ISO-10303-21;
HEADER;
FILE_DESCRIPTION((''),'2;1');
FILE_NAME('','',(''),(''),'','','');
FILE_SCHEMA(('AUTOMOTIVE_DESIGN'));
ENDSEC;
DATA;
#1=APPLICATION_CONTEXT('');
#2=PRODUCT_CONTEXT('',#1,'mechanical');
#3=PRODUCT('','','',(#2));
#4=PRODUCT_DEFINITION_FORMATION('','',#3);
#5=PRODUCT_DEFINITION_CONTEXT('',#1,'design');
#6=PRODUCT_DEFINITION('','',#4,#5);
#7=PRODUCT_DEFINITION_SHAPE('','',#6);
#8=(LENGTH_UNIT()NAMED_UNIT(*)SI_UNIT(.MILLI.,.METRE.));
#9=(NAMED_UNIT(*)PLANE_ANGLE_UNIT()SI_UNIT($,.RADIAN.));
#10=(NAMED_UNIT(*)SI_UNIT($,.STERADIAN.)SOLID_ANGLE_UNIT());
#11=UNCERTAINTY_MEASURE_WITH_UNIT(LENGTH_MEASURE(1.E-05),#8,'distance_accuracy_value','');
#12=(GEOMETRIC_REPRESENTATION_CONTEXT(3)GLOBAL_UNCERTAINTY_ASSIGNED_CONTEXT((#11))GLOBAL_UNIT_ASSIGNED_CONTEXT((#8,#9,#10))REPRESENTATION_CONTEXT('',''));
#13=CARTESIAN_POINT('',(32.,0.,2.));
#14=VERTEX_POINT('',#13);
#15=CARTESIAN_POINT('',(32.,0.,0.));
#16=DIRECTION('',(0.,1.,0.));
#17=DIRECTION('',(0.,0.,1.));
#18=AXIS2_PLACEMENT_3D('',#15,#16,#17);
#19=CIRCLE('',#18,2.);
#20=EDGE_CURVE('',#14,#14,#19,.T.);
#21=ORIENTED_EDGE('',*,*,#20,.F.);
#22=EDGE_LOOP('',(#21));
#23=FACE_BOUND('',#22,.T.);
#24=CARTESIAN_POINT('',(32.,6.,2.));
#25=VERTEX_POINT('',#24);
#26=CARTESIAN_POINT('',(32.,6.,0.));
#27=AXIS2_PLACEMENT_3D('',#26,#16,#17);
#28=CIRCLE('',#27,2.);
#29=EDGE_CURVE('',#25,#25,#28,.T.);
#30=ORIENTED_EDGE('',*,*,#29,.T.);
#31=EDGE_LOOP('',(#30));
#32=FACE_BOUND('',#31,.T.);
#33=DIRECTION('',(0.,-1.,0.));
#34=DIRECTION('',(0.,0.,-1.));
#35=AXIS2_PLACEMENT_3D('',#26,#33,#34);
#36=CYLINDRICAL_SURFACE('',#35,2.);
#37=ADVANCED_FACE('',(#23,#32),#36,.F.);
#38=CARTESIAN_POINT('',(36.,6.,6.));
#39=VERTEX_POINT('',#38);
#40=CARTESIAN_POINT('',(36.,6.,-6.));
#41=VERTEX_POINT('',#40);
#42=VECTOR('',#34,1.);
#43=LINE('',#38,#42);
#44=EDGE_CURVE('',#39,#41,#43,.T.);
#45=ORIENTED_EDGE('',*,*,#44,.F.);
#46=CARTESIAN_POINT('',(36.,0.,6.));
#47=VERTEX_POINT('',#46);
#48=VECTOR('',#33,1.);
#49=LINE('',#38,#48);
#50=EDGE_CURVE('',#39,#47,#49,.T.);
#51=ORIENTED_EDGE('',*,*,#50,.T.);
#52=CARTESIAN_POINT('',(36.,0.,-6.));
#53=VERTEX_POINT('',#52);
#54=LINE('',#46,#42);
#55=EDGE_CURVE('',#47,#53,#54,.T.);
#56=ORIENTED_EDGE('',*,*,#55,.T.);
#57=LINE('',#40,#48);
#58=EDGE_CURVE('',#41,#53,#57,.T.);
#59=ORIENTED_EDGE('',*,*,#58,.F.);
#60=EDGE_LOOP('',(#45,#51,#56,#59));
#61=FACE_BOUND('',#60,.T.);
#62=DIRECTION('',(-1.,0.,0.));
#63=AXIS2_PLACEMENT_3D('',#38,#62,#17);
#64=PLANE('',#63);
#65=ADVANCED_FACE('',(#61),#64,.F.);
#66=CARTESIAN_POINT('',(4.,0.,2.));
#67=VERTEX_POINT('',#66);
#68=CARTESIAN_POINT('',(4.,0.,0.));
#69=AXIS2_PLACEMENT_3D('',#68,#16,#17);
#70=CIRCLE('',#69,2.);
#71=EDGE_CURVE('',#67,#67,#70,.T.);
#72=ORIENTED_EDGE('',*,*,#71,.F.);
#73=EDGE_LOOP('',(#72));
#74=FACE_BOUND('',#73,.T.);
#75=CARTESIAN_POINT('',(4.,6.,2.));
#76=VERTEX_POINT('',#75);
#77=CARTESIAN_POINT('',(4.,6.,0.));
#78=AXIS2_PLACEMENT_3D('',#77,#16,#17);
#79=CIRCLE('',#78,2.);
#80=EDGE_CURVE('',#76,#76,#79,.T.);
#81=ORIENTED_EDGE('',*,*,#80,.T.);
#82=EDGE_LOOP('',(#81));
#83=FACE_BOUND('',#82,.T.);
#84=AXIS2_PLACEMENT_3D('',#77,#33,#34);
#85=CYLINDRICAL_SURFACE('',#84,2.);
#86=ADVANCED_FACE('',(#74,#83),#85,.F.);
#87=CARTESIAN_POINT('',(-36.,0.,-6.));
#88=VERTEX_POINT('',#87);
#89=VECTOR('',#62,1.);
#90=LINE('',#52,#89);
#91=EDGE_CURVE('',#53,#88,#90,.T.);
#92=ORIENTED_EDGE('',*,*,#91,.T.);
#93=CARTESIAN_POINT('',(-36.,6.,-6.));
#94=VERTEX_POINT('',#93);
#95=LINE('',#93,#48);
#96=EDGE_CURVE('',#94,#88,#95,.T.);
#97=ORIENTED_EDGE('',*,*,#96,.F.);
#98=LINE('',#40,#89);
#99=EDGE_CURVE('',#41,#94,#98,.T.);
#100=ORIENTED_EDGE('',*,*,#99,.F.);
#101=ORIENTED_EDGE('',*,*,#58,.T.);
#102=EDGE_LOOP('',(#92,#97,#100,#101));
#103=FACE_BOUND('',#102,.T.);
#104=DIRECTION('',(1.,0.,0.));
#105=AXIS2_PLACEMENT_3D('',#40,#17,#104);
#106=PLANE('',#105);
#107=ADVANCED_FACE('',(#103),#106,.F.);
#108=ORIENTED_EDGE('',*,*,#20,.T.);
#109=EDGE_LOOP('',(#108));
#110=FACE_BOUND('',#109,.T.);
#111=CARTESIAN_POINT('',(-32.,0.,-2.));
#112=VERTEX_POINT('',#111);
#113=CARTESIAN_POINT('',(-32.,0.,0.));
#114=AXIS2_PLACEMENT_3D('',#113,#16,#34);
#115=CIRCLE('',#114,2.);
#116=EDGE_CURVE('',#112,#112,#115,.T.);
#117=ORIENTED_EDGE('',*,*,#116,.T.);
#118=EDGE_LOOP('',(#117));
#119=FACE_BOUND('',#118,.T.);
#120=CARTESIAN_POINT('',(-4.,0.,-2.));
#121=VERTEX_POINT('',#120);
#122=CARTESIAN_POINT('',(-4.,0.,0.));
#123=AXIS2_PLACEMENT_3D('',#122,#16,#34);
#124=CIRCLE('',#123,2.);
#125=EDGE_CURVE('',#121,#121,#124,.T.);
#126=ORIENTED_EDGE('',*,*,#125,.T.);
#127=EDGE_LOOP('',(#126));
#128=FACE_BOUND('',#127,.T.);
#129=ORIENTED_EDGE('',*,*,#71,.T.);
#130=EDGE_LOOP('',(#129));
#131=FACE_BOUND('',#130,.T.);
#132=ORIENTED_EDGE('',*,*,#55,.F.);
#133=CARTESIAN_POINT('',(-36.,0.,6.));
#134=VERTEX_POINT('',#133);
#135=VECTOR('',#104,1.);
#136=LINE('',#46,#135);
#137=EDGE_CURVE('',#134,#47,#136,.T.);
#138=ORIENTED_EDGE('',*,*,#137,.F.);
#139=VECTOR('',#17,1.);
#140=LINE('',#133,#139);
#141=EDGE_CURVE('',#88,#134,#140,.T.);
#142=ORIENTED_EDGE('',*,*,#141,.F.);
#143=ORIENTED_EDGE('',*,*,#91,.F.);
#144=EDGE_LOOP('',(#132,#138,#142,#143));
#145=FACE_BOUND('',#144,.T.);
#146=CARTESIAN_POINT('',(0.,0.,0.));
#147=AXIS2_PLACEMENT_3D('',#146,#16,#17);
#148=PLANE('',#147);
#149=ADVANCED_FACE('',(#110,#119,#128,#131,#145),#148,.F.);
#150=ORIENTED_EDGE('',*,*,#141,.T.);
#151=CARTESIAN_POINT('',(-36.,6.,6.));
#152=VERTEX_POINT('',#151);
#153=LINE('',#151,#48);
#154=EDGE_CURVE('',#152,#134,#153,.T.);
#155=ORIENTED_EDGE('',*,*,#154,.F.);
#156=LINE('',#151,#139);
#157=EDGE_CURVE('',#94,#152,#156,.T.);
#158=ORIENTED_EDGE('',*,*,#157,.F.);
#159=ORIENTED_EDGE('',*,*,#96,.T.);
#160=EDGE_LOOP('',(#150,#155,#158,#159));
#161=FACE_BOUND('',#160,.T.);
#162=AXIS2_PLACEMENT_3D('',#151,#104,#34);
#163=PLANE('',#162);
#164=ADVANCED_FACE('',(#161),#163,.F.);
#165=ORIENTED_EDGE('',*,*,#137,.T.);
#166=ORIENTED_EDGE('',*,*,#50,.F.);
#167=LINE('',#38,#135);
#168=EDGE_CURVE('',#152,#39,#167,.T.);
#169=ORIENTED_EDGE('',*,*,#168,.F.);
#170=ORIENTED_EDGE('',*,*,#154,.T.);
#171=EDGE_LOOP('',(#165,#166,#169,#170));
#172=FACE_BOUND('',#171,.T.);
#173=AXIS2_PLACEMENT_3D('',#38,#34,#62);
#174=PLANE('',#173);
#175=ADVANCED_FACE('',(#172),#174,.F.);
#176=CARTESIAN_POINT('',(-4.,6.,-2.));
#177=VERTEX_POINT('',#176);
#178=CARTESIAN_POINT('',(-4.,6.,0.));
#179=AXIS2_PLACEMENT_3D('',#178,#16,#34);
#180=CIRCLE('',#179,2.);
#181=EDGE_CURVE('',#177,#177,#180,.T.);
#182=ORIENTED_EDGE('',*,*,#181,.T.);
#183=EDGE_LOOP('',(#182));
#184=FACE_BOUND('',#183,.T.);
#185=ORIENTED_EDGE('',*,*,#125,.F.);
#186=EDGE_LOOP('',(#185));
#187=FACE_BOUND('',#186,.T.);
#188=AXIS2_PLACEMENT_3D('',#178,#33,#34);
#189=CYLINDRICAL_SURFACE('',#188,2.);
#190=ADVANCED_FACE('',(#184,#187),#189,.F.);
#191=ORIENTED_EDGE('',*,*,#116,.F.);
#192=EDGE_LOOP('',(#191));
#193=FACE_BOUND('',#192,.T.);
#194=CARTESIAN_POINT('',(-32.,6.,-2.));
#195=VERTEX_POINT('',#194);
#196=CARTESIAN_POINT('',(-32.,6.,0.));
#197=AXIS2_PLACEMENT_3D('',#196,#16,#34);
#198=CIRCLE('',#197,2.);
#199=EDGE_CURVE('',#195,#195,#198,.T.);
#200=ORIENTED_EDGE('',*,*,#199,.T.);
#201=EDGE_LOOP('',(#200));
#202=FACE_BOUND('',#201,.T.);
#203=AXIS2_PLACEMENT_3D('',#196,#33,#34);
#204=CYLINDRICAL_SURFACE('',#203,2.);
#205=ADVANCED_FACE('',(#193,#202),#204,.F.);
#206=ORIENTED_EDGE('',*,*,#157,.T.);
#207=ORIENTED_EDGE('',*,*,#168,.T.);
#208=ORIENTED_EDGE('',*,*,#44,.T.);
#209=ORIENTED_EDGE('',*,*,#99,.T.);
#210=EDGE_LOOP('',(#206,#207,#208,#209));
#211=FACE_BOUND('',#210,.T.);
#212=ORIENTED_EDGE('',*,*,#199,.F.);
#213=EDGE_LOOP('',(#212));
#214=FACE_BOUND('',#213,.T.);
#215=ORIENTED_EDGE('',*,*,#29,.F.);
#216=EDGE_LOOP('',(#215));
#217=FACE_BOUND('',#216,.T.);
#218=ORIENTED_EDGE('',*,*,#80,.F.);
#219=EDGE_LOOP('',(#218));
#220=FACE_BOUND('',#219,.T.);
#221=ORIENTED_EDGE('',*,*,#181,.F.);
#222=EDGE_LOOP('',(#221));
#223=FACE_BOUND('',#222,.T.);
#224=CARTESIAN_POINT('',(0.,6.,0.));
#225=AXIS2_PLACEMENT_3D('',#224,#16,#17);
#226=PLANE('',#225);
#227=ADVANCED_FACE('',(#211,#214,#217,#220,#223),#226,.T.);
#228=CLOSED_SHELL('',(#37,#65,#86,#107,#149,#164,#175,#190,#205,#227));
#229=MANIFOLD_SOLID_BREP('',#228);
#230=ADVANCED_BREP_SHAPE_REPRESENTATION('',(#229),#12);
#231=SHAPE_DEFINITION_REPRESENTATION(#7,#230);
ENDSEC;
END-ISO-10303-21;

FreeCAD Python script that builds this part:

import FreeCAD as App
import Part
import Sketcher

doc = App.newDocument("Part")
body = doc.addObject("PartDesign::Body", "Body")

# Sketch on XZ plane
sketch1 = doc.addObject("Sketcher::SketchObject", "Sketch")
body.addObject(sketch1)
sketch1.AttachmentSupport = (doc.XZ_Plane, [""])
sketch1.MapMode = "FlatFace"
sketch1.addGeometry(Part.LineSegment(App.Vector(-36, -6, 0), App.Vector(-36, 6, 0)), False)
sketch1.addGeometry(Part.LineSegment(App.Vector(-36, 6, 0), App.Vector(36, 6, 0)), False)
sketch1.addGeometry(Part.LineSegment(App.Vector(36, 6, 0), App.Vector(36, -6, 0)), False)
sketch1.addGeometry(Part.LineSegment(App.Vector(36, -6, 0), App.Vector(-36, -6, 0)), False)
sketch1.addGeometry(Part.Circle(App.Vector(-32, 0, 0), App.Vector(0, 0, 1), 2), False)
sketch1.addGeometry(Part.Circle(App.Vector(-4, 0, 0), App.Vector(0, 0, 1), 2), False)
sketch1.addGeometry(Part.Circle(App.Vector(4, 0, 0), App.Vector(0, 0, 1), 2), False)
sketch1.addGeometry(Part.Circle(App.Vector(32, 0, 0), App.Vector(0, 0, 1), 2), False)
sketch1.addConstraint(Sketcher.Constraint("Coincident", 0, 2, 1, 1))
sketch1.addConstraint(Sketcher.Constraint("Coincident", 1, 2, 2, 1))
sketch1.addConstraint(Sketcher.Constraint("Coincident", 2, 2, 3, 1))
sketch1.addConstraint(Sketcher.Constraint("Coincident", 3, 2, 0, 1))
sketch1.addConstraint(Sketcher.Constraint("Vertical", 0))
sketch1.addConstraint(Sketcher.Constraint("Horizontal", 1))
sketch1.addConstraint(Sketcher.Constraint("Vertical", 2))
sketch1.addConstraint(Sketcher.Constraint("Horizontal", 3))
sketch1.addConstraint(Sketcher.Constraint("Equal", 4, 5))
sketch1.addConstraint(Sketcher.Constraint("Equal", 5, 6))
sketch1.addConstraint(Sketcher.Constraint("Equal", 6, 7))
sketch1.addConstraint(Sketcher.Constraint("Symmetric", 5, 3, 6, 3, -1, 1))
sketch1.addConstraint(Sketcher.Constraint("Symmetric", 4, 3, 7, 3, -1, 1))
sketch1.addConstraint(Sketcher.Constraint("Symmetric", 0, 2, 2, 2, -1, 1))
sketch1.addConstraint(Sketcher.Constraint("PointOnObject", 4, 3, -1))
sketch1.addConstraint(Sketcher.Constraint("PointOnObject", 5, 3, -1))
sketch1.addConstraint(Sketcher.Constraint("Diameter", 4, 4.0))
sketch1.addConstraint(Sketcher.Constraint("DistanceX", 1, 1, 1, 2, 72.0))
sketch1.addConstraint(Sketcher.Constraint("DistanceY", 0, 1, 0, 2, 12.0))
sketch1.addConstraint(Sketcher.Constraint("DistanceX", 4, 3, -1, 1, 32.0))
sketch1.addConstraint(Sketcher.Constraint("DistanceX", 5, 3, -1, 1, 4.0))
pad1 = doc.addObject("PartDesign::Pad", "Pad")
body.addObject(pad1)
pad1.Profile = sketch1
pad1.Length = 6
pad1.Reversed = True

doc.recompute()
